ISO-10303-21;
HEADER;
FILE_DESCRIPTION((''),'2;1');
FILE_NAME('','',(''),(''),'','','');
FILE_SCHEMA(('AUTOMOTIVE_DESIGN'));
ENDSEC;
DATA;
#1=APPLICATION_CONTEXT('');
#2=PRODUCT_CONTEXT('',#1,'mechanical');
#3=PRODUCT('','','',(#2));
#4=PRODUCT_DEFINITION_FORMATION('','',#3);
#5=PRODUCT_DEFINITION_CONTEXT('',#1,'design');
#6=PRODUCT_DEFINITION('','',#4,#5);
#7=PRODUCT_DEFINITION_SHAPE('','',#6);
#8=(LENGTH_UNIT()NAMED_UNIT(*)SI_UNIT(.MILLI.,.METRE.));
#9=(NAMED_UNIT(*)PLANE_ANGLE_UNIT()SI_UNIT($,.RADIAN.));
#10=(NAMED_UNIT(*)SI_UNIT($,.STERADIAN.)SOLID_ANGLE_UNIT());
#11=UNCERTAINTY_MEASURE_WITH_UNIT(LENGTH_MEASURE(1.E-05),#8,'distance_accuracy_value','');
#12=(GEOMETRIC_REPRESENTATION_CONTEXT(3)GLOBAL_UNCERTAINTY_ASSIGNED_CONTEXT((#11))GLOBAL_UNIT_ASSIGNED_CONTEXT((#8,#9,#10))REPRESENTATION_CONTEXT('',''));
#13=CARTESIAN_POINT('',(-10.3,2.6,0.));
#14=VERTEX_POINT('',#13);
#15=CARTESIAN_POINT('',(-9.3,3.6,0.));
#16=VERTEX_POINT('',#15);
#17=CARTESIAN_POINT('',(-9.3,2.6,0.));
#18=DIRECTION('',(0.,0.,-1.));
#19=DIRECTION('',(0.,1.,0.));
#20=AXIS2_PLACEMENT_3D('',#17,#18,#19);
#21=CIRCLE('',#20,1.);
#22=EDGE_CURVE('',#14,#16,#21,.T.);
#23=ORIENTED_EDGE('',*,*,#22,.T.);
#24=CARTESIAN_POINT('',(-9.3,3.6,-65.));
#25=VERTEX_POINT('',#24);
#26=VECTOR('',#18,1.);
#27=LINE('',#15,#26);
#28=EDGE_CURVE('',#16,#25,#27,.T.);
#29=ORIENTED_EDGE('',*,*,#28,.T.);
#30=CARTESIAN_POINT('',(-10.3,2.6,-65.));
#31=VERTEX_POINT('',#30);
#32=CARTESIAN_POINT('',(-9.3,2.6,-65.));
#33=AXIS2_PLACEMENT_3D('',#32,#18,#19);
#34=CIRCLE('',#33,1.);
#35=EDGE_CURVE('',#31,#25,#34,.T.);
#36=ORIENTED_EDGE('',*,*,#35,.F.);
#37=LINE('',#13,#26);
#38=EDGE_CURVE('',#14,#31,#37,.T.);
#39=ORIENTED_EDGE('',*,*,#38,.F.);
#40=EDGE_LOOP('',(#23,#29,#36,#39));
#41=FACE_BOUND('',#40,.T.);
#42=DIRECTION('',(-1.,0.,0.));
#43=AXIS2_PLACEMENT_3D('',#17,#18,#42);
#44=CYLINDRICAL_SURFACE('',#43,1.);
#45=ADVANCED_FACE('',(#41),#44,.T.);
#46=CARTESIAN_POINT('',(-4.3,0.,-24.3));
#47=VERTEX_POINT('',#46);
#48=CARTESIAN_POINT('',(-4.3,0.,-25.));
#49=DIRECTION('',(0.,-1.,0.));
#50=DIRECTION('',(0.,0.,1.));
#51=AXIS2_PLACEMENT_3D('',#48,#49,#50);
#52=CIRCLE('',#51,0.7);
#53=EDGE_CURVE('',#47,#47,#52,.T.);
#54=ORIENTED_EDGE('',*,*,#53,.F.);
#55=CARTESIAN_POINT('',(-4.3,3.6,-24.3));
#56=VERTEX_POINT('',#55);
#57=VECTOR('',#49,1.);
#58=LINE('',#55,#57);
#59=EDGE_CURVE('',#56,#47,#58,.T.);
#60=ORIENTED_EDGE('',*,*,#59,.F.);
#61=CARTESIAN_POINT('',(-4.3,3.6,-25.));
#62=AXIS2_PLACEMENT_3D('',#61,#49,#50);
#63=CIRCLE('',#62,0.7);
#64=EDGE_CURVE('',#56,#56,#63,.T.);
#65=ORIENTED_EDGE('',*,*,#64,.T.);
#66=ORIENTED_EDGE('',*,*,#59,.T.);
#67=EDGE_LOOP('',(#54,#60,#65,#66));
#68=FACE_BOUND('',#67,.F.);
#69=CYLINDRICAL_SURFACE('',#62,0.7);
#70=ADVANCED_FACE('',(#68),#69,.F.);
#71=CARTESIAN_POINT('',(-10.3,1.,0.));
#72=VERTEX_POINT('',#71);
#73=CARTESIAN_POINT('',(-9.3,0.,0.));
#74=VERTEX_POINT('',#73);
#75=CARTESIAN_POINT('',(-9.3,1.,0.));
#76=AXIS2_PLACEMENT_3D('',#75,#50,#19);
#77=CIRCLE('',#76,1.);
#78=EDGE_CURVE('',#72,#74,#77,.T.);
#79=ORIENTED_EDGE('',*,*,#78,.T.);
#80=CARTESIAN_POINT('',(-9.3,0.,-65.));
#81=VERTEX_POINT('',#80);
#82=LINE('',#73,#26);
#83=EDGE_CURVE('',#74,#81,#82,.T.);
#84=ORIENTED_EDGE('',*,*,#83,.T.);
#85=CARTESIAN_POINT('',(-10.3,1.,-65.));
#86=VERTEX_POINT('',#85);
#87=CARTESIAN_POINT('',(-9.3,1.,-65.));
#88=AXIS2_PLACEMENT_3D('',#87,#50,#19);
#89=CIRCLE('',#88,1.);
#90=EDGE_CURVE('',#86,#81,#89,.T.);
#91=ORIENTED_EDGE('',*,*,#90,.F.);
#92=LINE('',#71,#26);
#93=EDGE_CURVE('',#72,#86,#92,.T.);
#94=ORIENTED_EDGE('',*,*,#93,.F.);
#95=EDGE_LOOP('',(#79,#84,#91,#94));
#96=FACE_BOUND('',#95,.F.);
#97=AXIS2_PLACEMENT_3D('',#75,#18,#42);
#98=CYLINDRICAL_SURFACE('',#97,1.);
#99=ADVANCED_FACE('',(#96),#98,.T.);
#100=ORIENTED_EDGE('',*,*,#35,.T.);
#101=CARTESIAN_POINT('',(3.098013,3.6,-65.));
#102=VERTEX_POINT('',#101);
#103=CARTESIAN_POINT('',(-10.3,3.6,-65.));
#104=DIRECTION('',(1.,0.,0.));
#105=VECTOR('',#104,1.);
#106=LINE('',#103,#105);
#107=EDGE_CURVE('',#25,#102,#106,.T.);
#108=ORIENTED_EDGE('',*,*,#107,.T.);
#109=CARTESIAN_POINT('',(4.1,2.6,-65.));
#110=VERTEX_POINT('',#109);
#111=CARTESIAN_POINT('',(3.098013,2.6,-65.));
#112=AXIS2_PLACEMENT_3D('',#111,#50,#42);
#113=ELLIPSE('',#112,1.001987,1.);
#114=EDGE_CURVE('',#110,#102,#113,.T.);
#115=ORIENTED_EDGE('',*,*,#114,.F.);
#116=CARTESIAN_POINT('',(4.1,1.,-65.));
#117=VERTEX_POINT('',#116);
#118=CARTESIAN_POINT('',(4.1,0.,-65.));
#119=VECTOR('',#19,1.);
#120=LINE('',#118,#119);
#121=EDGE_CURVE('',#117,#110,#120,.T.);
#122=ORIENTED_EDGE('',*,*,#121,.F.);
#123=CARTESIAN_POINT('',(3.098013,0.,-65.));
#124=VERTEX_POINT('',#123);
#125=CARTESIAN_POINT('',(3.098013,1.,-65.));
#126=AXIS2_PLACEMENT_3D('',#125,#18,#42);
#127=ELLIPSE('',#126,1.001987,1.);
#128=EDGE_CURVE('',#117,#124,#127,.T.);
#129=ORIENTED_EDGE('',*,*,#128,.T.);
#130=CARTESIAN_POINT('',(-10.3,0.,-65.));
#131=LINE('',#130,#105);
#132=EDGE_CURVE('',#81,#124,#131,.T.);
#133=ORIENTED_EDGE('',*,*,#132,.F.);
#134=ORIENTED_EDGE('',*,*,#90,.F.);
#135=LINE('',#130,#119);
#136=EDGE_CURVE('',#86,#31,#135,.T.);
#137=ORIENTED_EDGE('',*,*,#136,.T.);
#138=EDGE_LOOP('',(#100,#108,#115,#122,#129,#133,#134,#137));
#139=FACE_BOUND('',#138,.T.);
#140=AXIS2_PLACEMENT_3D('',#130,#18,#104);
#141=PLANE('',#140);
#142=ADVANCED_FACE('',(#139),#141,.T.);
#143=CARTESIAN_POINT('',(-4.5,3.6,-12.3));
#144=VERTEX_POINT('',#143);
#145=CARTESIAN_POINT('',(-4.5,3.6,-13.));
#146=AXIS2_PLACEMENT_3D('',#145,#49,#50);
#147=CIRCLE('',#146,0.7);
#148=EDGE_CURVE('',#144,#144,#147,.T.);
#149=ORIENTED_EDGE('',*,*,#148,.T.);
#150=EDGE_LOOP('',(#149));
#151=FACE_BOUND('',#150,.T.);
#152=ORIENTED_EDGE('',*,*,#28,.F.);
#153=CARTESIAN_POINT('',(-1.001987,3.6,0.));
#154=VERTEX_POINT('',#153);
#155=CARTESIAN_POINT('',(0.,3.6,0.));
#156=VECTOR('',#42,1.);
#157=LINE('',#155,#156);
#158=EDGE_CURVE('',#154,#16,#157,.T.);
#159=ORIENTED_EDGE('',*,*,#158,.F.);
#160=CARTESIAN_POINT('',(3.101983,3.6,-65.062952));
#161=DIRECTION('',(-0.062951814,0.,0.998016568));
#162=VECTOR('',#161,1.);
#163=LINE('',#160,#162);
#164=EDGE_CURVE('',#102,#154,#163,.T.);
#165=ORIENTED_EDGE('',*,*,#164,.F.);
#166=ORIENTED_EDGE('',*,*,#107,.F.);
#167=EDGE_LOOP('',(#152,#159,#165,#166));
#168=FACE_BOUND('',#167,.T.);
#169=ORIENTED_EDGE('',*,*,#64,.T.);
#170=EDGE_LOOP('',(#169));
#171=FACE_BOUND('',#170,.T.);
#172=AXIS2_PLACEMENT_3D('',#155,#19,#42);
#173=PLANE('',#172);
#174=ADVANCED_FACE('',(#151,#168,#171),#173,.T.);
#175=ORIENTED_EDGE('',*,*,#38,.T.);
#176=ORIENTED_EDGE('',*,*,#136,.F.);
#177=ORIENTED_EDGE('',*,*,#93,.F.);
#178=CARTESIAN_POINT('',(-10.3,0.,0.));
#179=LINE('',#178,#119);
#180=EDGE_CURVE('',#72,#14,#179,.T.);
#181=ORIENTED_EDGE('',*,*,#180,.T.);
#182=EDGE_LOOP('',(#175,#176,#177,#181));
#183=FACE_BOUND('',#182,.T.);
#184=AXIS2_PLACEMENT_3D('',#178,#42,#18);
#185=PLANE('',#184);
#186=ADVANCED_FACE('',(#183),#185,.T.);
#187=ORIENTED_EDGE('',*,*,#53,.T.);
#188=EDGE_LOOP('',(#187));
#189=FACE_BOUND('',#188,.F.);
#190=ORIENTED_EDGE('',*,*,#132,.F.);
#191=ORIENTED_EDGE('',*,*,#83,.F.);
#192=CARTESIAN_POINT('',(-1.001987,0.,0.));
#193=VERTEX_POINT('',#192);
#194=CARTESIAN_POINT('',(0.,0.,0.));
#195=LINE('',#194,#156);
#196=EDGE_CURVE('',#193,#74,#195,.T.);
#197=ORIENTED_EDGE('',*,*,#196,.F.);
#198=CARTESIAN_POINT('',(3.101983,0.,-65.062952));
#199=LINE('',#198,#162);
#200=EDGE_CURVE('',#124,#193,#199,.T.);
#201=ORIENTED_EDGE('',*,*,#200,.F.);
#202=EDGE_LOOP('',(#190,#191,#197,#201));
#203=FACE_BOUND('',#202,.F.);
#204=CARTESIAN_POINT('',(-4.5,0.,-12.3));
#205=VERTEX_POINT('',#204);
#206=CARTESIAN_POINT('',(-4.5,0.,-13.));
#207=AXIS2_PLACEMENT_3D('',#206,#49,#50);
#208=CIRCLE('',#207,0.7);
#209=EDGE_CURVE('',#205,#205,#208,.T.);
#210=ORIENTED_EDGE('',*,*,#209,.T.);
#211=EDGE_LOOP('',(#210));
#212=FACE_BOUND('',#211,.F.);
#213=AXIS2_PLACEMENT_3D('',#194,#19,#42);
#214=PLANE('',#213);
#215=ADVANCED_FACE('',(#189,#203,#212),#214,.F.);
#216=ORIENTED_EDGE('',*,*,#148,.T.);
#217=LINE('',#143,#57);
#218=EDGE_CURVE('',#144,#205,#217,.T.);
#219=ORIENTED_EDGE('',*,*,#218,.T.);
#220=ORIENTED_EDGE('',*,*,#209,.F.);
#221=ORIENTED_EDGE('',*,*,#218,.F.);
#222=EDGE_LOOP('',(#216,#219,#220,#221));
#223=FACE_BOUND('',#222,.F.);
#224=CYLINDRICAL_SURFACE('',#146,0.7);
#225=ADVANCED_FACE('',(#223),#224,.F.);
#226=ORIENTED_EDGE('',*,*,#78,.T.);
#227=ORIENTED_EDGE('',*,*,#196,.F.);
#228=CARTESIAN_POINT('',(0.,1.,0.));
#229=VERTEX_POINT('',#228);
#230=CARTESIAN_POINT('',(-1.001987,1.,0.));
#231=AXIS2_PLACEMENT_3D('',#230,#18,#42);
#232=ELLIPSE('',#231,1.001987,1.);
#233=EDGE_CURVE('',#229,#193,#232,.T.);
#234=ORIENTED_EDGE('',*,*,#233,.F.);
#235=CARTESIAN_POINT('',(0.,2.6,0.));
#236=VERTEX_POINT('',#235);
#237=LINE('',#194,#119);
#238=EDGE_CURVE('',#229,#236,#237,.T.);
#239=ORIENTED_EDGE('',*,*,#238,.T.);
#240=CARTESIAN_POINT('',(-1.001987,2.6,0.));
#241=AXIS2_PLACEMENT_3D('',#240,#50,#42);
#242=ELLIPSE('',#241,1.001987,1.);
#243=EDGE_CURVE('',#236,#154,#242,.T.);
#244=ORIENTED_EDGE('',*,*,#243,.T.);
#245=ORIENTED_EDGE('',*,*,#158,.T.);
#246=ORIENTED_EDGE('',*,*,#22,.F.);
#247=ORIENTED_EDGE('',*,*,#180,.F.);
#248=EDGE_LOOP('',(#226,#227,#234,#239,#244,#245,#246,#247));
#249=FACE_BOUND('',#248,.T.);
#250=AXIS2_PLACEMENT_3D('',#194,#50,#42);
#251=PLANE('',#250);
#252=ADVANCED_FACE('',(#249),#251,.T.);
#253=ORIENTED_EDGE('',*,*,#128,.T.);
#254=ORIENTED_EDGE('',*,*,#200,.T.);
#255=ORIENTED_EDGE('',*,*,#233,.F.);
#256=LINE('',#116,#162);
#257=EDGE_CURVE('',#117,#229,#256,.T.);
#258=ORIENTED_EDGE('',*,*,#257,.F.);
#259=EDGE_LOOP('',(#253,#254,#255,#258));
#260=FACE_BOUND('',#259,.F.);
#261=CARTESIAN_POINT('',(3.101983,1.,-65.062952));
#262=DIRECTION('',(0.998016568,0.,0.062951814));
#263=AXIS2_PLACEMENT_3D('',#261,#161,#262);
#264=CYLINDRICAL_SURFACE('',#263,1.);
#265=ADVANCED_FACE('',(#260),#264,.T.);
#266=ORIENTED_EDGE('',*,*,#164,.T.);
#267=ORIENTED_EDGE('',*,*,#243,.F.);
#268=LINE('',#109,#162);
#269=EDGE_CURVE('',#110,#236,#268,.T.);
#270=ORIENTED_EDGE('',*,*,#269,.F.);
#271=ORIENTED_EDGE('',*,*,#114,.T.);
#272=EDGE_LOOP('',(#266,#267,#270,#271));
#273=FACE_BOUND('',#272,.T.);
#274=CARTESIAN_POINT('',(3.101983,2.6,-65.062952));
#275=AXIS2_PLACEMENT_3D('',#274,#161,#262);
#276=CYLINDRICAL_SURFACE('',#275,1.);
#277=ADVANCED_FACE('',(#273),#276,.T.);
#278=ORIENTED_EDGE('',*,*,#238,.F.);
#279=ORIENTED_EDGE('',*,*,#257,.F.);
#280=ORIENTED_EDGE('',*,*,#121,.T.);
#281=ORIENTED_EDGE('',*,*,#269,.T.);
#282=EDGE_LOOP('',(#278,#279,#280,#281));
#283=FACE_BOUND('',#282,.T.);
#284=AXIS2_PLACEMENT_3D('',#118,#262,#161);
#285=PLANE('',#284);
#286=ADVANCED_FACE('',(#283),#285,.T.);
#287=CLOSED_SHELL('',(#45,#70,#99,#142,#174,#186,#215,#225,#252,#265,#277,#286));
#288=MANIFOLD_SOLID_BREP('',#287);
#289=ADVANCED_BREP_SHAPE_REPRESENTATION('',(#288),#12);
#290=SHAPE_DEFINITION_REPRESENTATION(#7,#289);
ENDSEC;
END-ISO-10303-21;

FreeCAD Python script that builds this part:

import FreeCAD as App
import Part
import Sketcher


def edges_at(feature, points):
    """Names of the edges that pass closest to the given points."""
    edges = feature.Shape.Edges
    near = lambda p: min(range(len(edges)), key=lambda i: edges[i].distToShape(Part.Vertex(*p))[0])
    return sorted({f"Edge{near(p) + 1}" for p in points})


def add_polygon(sketch, points):
    """Adds a closed chain of lines whose ends are joined by coincident constraints."""
    first, n = sketch.GeometryCount, len(points)
    for a, b in zip(points, points[1:] + points[:1]):
        sketch.addGeometry(Part.LineSegment(App.Vector(*a, 0), App.Vector(*b, 0)), False)
    for i in range(n):
        sketch.addConstraint(Sketcher.Constraint("Coincident", first + i, 2, first + (i + 1) % n, 1))

doc = App.newDocument("Part")
body = doc.addObject("PartDesign::Body", "Body")

# Sketch on XZ plane
sketch1 = body.newObject("Sketcher::SketchObject", "Sketch")
sketch1.AttachmentSupport = (doc.getObject("XZ_Plane"), [""])
sketch1.MapMode = "FlatFace"
add_polygon(sketch1, [(-10, 0), (0, 0), (4, -65), (-10, -65)])  # lines 0-3
sketch1.addConstraint([
    Sketcher.Constraint("Horizontal", 0),
    Sketcher.Constraint("Horizontal", 2),
    Sketcher.Constraint("Vertical", 3),
    Sketcher.Constraint("Coincident", 0, 2, -1, 1),
    Sketcher.Constraint("DistanceY", 3, 1, 3, 2, 65.0),
    Sketcher.Constraint("DistanceX", 0, 1, 0, 2, 10.3),
    Sketcher.Constraint("DistanceX", 2, 2, 2, 1, 14.4),
])
pad1 = body.newObject("PartDesign::Pad", "Pad")
pad1.Profile = sketch1
pad1.Length = 3.6
pad1.Reversed = True

# Sketch on XZ plane
sketch2 = body.newObject("Sketcher::SketchObject", "Sketch001")
sketch2.AttachmentSupport = (doc.getObject("XZ_Plane"), [""])
sketch2.MapMode = "FlatFace"
sketch2.AttachmentOffset = App.Placement(App.Vector(0, 0, -3.6), App.Rotation())
sketch2.addGeometry([
    Part.Circle(App.Vector(-4.5, -13, 0), App.Vector(0, 0, 1), 0.7),
    Part.Circle(App.Vector(-4.3, -25, 0), App.Vector(0, 0, 1), 0.7),
], False)
sketch2.addConstraint([
    Sketcher.Constraint("Equal", 0, 1),
    Sketcher.Constraint("Diameter", 0, 1.4),
    Sketcher.Constraint("DistanceY", 0, 3, -1, 1, 13.0),
    Sketcher.Constraint("DistanceY", 1, 3, -1, 1, 25.0),
    Sketcher.Constraint("DistanceX", 0, 3, -1, 1, 4.5),
    Sketcher.Constraint("DistanceX", 1, 3, -1, 1, 4.3),
])
doc.recompute()
hole = body.newObject("PartDesign::Hole", "Hole")
hole.Profile = sketch2
hole.ThreadType = "None"
hole.Diameter = 1.4
hole.DepthType = "ThroughAll"
hole.Reversed = True
doc.recompute()

fillet = body.newObject("PartDesign::Fillet", "Fillet")
fillet.Base = (hole, edges_at(hole, [
    (-10.3, 3.6, -32.5),
    (-10.3, 0, -32.5),
    (2.05, 3.6, -32.5),
    (2.05, 0, -32.5),
]))
fillet.Radius = 1

doc.recompute()
